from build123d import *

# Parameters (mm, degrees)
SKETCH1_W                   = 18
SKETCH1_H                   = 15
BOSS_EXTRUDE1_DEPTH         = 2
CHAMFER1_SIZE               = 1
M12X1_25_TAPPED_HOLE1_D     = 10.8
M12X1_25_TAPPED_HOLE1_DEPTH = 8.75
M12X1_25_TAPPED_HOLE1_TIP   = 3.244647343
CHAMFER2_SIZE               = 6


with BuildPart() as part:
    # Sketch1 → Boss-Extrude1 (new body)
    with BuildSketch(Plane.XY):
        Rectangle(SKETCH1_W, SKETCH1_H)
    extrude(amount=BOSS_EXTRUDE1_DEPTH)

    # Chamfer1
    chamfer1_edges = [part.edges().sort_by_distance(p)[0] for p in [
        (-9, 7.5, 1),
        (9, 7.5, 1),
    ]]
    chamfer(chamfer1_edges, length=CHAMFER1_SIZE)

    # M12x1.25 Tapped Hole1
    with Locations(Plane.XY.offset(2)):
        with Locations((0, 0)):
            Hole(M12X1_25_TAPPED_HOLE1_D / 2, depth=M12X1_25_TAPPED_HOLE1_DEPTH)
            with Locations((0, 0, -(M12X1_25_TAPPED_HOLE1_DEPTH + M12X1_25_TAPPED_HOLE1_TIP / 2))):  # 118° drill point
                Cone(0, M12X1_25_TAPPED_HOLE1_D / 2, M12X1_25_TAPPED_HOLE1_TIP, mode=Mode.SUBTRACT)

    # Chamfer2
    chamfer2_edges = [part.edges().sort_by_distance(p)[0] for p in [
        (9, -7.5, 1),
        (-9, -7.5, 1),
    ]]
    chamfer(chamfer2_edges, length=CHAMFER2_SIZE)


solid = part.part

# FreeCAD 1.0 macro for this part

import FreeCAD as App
import Part
import Sketcher

V = App.Vector


def edges_at(feature, points):
    """Names of the edges that pass closest to the given points."""
    edges = feature.Shape.Edges
    near = lambda p: min(range(len(edges)), key=lambda i: edges[i].distToShape(Part.Vertex(*p))[0])
    return sorted({f"Edge{near(p) + 1}" for p in points})


def add_polygon(sketch, points):
    """Adds a closed chain of lines whose ends are joined by coincident constraints."""
    first, n = sketch.GeometryCount, len(points)
    for a, b in zip(points, points[1:] + points[:1]):
        sketch.addGeometry(Part.LineSegment(App.Vector(*a, 0), App.Vector(*b, 0)), False)
    for i in range(n):
        sketch.addConstraint(Sketcher.Constraint("Coincident", first + i, 2, first + (i + 1) % n, 1))

doc = App.newDocument("Part")
params = doc.addObject("Spreadsheet::Sheet", "Params")
for row, (alias, value) in enumerate([
    ("sketch1_width", "18 mm"),
    ("sketch1_height", "15 mm"),
    ("pad1_length", "2 mm"),
    ("chamfer_size", "1 mm"),
    ("sketch2_diameter", "10.8 mm"),
    ("hole_diameter", "10.8 mm"),
    ("hole_depth", "8.75 mm"),
    ("chamfer2_size", "6 mm"),
], start=1):
    params.set(f"A{row}", alias)
    params.set(f"B{row}", "=" + value)
    params.setAlias(f"B{row}", alias)

body = doc.addObject("PartDesign::Body", "Body")

# Sketch on XY plane
sketch1 = body.newObject("Sketcher::SketchObject", "Sketch")
sketch1.AttachmentSupport = (doc.getObject("XY_Plane"), [""])
sketch1.MapMode = "FlatFace"
add_polygon(sketch1, [(-9, 8), (-9, -8), (9, -8), (9, 8)])  # lines 0-3
sketch1.addConstraint(Sketcher.Constraint("Vertical", 0))
sketch1.addConstraint(Sketcher.Constraint("Horizontal", 1))
sketch1.addConstraint(Sketcher.Constraint("Vertical", 2))
sketch1.addConstraint(Sketcher.Constraint("Horizontal", 3))
sketch1.addConstraint(Sketcher.Constraint("Symmetric", 0, 2, 2, 2, -1, 1))
sketch1.addConstraint(Sketcher.Constraint("DistanceX", 1, 1, 1, 2, 18.0))
sketch1.addConstraint(Sketcher.Constraint("DistanceY", 0, 2, 0, 1, 15.0))
sketch1.setExpression("Constraints[9]", "Params.sketch1_width")
sketch1.setExpression("Constraints[10]", "Params.sketch1_height")
pad1 = body.newObject("PartDesign::Pad", "Pad")
pad1.Profile = sketch1
pad1.setExpression("Length", "Params.pad1_length")
doc.recompute()

chamfer = body.newObject("PartDesign::Chamfer", "Chamfer")
chamfer.Base = (pad1, edges_at(pad1, [(-9, 7.5, 1), (9, 7.5, 1)]))
chamfer.setExpression("Size", "Params.chamfer_size")

# Sketch on XY plane
sketch2 = body.newObject("Sketcher::SketchObject", "Sketch001")
sketch2.AttachmentSupport = (doc.getObject("XY_Plane"), [""])
sketch2.MapMode = "FlatFace"
sketch2.AttachmentOffset = App.Placement(V(0, 0, 2), App.Rotation())
sketch2.addGeometry(Part.Circle(V(0, 0, 0), V(0, 0, 1), 5), False)
sketch2.addConstraint(Sketcher.Constraint("Coincident", 0, 3, -1, 1))
sketch2.addConstraint(Sketcher.Constraint("Diameter", 0, 10.8))
sketch2.setExpression("Constraints[1]", "Params.sketch2_diameter")
doc.recompute()
hole = body.newObject("PartDesign::Hole", "Hole")
hole.Profile = sketch2
hole.ThreadType = "None"
hole.setExpression("Diameter", "Params.hole_diameter")
hole.DepthType = "Dimension"
hole.setExpression("Depth", "Params.hole_depth")
hole.DrillPoint = "Angled"
hole.DrillPointAngle = 118
doc.recompute()

chamfer2 = body.newObject("PartDesign::Chamfer", "Chamfer001")
chamfer2.Base = (hole, edges_at(hole, [(9, -7.5, 1), (-9, -7.5, 1)]))
chamfer2.setExpression("Size", "Params.chamfer2_size")

doc.recompute()
